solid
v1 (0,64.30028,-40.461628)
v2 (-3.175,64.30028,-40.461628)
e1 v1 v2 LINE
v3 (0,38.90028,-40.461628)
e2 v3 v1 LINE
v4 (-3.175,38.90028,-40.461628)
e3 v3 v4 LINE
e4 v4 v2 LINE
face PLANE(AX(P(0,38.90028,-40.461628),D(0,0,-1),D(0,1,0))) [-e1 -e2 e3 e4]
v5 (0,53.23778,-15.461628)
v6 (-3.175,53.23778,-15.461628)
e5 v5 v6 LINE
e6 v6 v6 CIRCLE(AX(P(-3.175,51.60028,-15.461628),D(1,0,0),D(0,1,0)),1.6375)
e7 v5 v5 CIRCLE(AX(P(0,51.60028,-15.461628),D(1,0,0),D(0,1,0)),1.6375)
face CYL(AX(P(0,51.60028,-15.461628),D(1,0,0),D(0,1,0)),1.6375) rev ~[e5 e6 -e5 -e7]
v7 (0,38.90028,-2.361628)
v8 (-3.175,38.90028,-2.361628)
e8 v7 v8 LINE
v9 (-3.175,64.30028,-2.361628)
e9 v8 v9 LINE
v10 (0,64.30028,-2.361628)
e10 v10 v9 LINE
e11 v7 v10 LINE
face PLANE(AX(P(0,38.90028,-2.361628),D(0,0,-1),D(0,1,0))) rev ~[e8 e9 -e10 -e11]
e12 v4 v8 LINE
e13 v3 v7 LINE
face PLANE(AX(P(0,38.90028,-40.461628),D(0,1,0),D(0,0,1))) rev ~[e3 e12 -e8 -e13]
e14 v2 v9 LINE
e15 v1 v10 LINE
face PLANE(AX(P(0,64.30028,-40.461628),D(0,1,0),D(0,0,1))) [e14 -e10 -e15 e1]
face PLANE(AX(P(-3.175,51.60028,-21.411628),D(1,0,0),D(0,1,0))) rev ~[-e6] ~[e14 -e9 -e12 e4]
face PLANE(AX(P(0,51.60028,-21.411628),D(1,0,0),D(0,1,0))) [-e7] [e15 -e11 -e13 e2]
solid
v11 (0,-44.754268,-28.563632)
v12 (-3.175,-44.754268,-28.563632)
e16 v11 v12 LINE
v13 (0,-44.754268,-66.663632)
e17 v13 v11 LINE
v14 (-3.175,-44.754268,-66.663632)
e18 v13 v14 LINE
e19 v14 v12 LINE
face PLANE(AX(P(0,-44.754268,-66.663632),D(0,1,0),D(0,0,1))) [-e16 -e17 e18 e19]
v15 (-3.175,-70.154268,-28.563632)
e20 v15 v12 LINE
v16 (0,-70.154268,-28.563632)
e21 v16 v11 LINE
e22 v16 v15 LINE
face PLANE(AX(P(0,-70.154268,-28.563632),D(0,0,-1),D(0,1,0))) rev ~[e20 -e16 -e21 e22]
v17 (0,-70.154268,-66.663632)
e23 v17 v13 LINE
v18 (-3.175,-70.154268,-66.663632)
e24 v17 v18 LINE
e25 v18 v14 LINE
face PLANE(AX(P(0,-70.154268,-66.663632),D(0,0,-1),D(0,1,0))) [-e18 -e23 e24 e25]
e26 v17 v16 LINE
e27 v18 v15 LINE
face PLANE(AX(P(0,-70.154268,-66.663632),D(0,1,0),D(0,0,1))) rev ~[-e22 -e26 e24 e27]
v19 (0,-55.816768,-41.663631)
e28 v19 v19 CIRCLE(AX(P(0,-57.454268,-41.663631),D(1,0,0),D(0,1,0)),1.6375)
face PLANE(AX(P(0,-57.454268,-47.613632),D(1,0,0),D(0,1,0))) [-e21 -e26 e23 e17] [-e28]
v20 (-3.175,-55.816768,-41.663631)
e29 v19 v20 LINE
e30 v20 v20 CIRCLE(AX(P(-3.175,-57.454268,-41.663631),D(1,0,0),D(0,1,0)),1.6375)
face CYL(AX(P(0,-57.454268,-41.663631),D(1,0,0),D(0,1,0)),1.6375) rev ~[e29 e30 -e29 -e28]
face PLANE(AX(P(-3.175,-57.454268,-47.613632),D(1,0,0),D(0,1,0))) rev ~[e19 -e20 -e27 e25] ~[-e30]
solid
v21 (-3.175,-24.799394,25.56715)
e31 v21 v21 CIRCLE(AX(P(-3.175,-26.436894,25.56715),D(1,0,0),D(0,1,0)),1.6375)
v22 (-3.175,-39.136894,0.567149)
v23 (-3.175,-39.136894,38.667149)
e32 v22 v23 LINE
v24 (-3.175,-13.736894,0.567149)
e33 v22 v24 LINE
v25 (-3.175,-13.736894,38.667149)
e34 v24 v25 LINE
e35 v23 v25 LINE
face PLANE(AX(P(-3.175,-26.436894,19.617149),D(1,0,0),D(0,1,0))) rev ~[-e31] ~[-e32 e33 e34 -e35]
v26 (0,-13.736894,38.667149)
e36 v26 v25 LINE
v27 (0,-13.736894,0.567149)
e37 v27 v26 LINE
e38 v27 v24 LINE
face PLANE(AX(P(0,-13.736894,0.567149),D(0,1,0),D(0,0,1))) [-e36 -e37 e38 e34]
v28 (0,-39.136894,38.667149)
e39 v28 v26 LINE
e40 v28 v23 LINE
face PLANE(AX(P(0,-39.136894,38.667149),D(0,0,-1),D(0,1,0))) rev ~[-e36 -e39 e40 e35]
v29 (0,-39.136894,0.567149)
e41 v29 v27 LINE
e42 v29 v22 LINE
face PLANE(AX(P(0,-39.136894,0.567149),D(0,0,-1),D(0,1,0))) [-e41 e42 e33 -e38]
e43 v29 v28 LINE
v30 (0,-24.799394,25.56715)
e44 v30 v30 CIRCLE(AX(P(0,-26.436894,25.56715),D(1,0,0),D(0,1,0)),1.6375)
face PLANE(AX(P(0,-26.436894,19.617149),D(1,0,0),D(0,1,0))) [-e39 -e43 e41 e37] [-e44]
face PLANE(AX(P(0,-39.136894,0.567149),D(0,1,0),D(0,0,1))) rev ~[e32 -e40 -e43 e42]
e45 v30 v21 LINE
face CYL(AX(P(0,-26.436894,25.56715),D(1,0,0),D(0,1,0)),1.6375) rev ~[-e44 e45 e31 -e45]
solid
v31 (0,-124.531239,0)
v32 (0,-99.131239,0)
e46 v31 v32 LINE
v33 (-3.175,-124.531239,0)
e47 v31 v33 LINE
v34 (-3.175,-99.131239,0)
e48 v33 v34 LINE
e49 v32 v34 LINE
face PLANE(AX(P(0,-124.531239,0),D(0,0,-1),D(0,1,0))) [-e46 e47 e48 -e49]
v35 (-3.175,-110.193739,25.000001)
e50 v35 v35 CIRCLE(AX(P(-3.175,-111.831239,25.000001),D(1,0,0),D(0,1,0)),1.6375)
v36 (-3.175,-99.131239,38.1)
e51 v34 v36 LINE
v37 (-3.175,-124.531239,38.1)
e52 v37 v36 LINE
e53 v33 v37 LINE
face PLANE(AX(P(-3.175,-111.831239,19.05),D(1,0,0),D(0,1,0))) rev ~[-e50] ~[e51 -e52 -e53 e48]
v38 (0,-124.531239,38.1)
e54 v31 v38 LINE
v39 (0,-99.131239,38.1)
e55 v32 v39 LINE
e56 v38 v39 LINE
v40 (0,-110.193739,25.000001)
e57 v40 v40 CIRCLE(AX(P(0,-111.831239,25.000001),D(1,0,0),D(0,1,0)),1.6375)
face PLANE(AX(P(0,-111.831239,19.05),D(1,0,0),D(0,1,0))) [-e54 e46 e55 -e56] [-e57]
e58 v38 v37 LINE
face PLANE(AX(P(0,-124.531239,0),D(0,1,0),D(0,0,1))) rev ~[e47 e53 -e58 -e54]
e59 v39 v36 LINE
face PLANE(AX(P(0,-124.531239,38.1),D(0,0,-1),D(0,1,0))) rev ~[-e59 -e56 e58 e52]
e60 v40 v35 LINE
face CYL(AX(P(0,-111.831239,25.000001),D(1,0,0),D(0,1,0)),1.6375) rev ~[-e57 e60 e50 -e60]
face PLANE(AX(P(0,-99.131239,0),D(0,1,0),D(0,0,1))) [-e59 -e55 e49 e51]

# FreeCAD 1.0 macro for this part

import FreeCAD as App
import Part
import Sketcher

V = App.Vector
Q = App.Units.Quantity

doc = App.newDocument("Part")
body = doc.addObject("PartDesign::Body", "Body")

# Sketch on YZ plane
sketch1 = body.newObject("Sketcher::SketchObject", "Sketch")
sketch1.AttachmentSupport = (doc.getObject("YZ_Plane"), [""])
sketch1.MapMode = "FlatFace"
sketch1.addGeometry(Part.LineSegment(V(-39.1, 38.7, 0), V(-39.1, 0.6, 0)), False)
sketch1.addGeometry(Part.LineSegment(V(-39.1, 0.6, 0), V(-13.7, 0.6, 0)), False)
sketch1.addGeometry(Part.LineSegment(V(-13.7, 0.6, 0), V(-13.7, 38.7, 0)), False)
sketch1.addGeometry(Part.LineSegment(V(-13.7, 38.7, 0), V(-39.1, 38.7, 0)), False)
sketch1.addGeometry(Part.Circle(V(-26.4, 25.6, 0), V(0, 0, 1), 1.6), False)
sketch1.addConstraint(Sketcher.Constraint("Coincident", 0, 2, 1, 1))
sketch1.addConstraint(Sketcher.Constraint("Coincident", 1, 2, 2, 1))
sketch1.addConstraint(Sketcher.Constraint("Coincident", 2, 2, 3, 1))
sketch1.addConstraint(Sketcher.Constraint("Coincident", 3, 2, 0, 1))
sketch1.addConstraint(Sketcher.Constraint("Vertical", 0))
sketch1.addConstraint(Sketcher.Constraint("Horizontal", 1))
sketch1.addConstraint(Sketcher.Constraint("Vertical", 2))
sketch1.addConstraint(Sketcher.Constraint("Horizontal", 3))
sketch1.addConstraint(Sketcher.Constraint("DistanceX", 1, 1, 1, 2, Q("1 in")))
sketch1.addConstraint(Sketcher.Constraint("DistanceY", 0, 2, 0, 1, Q("1.5 in")))
sketch1.addConstraint(Sketcher.Constraint("DistanceX", 0, 2, 4, 3, Q("0.5 in")))
sketch1.addConstraint(Sketcher.Constraint("Diameter", 4, Q("3.275 mm")))
sketch1.addConstraint(Sketcher.Constraint("DistanceY", 0, 2, 4, 3, Q("25.000001 mm")))
sketch1.addConstraint(Sketcher.Constraint("DistanceY", -1, 1, 4, 3, Q("25.56715 mm")))
sketch1.addConstraint(Sketcher.Constraint("DistanceX", 4, 3, -1, 1, Q("26.436894 mm")))
pad1 = body.newObject("PartDesign::Pad", "Pad")
pad1.Profile = sketch1
pad1.Length = Q("0.125 in")
pad1.Reversed = True
body2 = doc.addObject("PartDesign::Body", "Body001")

# Sketch on YZ plane
sketch2 = body2.newObject("Sketcher::SketchObject", "Sketch001")
sketch2.AttachmentSupport = (doc.getObject("YZ_Plane001"), [""])
sketch2.MapMode = "FlatFace"
sketch2.addGeometry(Part.LineSegment(V(38.9, -2.4, 0), V(38.9, -40.5, 0)), False)
sketch2.addGeometry(Part.LineSegment(V(38.9, -40.5, 0), V(64.3, -40.5, 0)), False)
sketch2.addGeometry(Part.LineSegment(V(64.3, -40.5, 0), V(64.3, -2.4, 0)), False)
sketch2.addGeometry(Part.LineSegment(V(64.3, -2.4, 0), V(38.9, -2.4, 0)), False)
sketch2.addGeometry(Part.Circle(V(51.6, -15.5, 0), V(0, 0, 1), 1.6), False)
sketch2.addConstraint(Sketcher.Constraint("Coincident", 0, 2, 1, 1))
sketch2.addConstraint(Sketcher.Constraint("Coincident", 1, 2, 2, 1))
sketch2.addConstraint(Sketcher.Constraint("Coincident", 2, 2, 3, 1))
sketch2.addConstraint(Sketcher.Constraint("Coincident", 3, 2, 0, 1))
sketch2.addConstraint(Sketcher.Constraint("Vertical", 0))
sketch2.addConstraint(Sketcher.Constraint("Horizontal", 1))
sketch2.addConstraint(Sketcher.Constraint("Vertical", 2))
sketch2.addConstraint(Sketcher.Constraint("Horizontal", 3))
sketch2.addConstraint(Sketcher.Constraint("DistanceX", 1, 1, 1, 2, Q("1 in")))
sketch2.addConstraint(Sketcher.Constraint("DistanceY", 0, 2, 0, 1, Q("1.5 in")))
sketch2.addConstraint(Sketcher.Constraint("DistanceX", 0, 2, 4, 3, Q("0.5 in")))
sketch2.addConstraint(Sketcher.Constraint("Diameter", 4, Q("3.275 mm")))
sketch2.addConstraint(Sketcher.Constraint("DistanceY", 0, 2, 4, 3, Q("25 mm")))
sketch2.addConstraint(Sketcher.Constraint("DistanceX", -1, 1, 4, 3, Q("51.60028 mm")))
sketch2.addConstraint(Sketcher.Constraint("DistanceY", 2, 2, -1, 1, Q("2.361628 mm")))
pad2 = body2.newObject("PartDesign::Pad", "Pad001")
pad2.Profile = sketch2
pad2.Length = Q("0.125 in")
pad2.Reversed = True
body3 = doc.addObject("PartDesign::Body", "Body002")

# Sketch on YZ plane
sketch3 = body3.newObject("Sketcher::SketchObject", "Sketch002")
sketch3.AttachmentSupport = (doc.getObject("YZ_Plane002"), [""])
sketch3.MapMode = "FlatFace"
sketch3.addGeometry(Part.LineSegment(V(-124.5, 38.1, 0), V(-124.5, 0, 0)), False)
sketch3.addGeometry(Part.LineSegment(V(-124.5, 0, 0), V(-99.1, 0, 0)), False)
sketch3.addGeometry(Part.LineSegment(V(-99.1, 0, 0), V(-99.1, 38.1, 0)), False)
sketch3.addGeometry(Part.LineSegment(V(-99.1, 38.1, 0), V(-124.5, 38.1, 0)), False)
sketch3.addGeometry(Part.Circle(V(-111.8, 25, 0), V(0, 0, 1), 1.6), False)
sketch3.addConstraint(Sketcher.Constraint("Coincident", 0, 2, 1, 1))
sketch3.addConstraint(Sketcher.Constraint("Coincident", 1, 2, 2, 1))
sketch3.addConstraint(Sketcher.Constraint("Coincident", 2, 2, 3, 1))
sketch3.addConstraint(Sketcher.Constraint("Coincident", 3, 2, 0, 1))
sketch3.addConstraint(Sketcher.Constraint("Vertical", 0))
sketch3.addConstraint(Sketcher.Constraint("Horizontal", 1))
sketch3.addConstraint(Sketcher.Constraint("Vertical", 2))
sketch3.addConstraint(Sketcher.Constraint("Horizontal", 3))
sketch3.addConstraint(Sketcher.Constraint("PointOnObject", 0, 2, -1))
sketch3.addConstraint(Sketcher.Constraint("DistanceX", 1, 1, 1, 2, Q("1 in")))
sketch3.addConstraint(Sketcher.Constraint("DistanceY", 0, 2, 0, 1, Q("1.5 in")))
sketch3.addConstraint(Sketcher.Constraint("DistanceX", 0, 2, 4, 3, Q("0.5 in")))
sketch3.addConstraint(Sketcher.Constraint("Diameter", 4, Q("3.275 mm")))
sketch3.addConstraint(Sketcher.Constraint("DistanceY", -1, 1, 4, 3, Q("25.000001 mm")))
sketch3.addConstraint(Sketcher.Constraint("DistanceX", 4, 3, -1, 1, Q("111.831239 mm")))
pad3 = body3.newObject("PartDesign::Pad", "Pad002")
pad3.Profile = sketch3
pad3.Length = Q("0.125 in")
pad3.Reversed = True
body4 = doc.addObject("PartDesign::Body", "Body003")

# Sketch on YZ plane
sketch4 = body4.newObject("Sketcher::SketchObject", "Sketch003")
sketch4.AttachmentSupport = (doc.getObject("YZ_Plane003"), [""])
sketch4.MapMode = "FlatFace"
sketch4.addGeometry(Part.LineSegment(V(-70.2, -28.6, 0), V(-70.2, -66.7, 0)), False)
sketch4.addGeometry(Part.LineSegment(V(-70.2, -66.7, 0), V(-44.8, -66.7, 0)), False)
sketch4.addGeometry(Part.LineSegment(V(-44.8, -66.7, 0), V(-44.8, -28.6, 0)), False)
sketch4.addGeometry(Part.LineSegment(V(-44.8, -28.6, 0), V(-70.2, -28.6, 0)), False)
sketch4.addGeometry(Part.Circle(V(-57.5, -41.7, 0), V(0, 0, 1), 1.6), False)
sketch4.addConstraint(Sketcher.Constraint("Coincident", 0, 2, 1, 1))
sketch4.addConstraint(Sketcher.Constraint("Coincident", 1, 2, 2, 1))
sketch4.addConstraint(Sketcher.Constraint("Coincident", 2, 2, 3, 1))
sketch4.addConstraint(Sketcher.Constraint("Coincident", 3, 2, 0, 1))
sketch4.addConstraint(Sketcher.Constraint("Vertical", 0))
sketch4.addConstraint(Sketcher.Constraint("Horizontal", 1))
sketch4.addConstraint(Sketcher.Constraint("Vertical", 2))
sketch4.addConstraint(Sketcher.Constraint("Horizontal", 3))
sketch4.addConstraint(Sketcher.Constraint("DistanceX", 1, 1, 1, 2, Q("1 in")))
sketch4.addConstraint(Sketcher.Constraint("DistanceY", 0, 2, 0, 1, Q("1.5 in")))
sketch4.addConstraint(Sketcher.Constraint("DistanceX", 0, 2, 4, 3, Q("0.5 in")))
sketch4.addConstraint(Sketcher.Constraint("Diameter", 4, Q("3.275 mm")))
sketch4.addConstraint(Sketcher.Constraint("DistanceY", 0, 2, 4, 3, Q("25.000001 mm")))
sketch4.addConstraint(Sketcher.Constraint("DistanceY", 4, 3, -1, 1, Q("41.663631 mm")))
sketch4.addConstraint(Sketcher.Constraint("DistanceX", 0, 2, -1, 1, Q("70.154268 mm")))
pad4 = body4.newObject("PartDesign::Pad", "Pad003")
pad4.Profile = sketch4
pad4.Length = Q("0.125 in")
pad4.Reversed = True

doc.recompute()
